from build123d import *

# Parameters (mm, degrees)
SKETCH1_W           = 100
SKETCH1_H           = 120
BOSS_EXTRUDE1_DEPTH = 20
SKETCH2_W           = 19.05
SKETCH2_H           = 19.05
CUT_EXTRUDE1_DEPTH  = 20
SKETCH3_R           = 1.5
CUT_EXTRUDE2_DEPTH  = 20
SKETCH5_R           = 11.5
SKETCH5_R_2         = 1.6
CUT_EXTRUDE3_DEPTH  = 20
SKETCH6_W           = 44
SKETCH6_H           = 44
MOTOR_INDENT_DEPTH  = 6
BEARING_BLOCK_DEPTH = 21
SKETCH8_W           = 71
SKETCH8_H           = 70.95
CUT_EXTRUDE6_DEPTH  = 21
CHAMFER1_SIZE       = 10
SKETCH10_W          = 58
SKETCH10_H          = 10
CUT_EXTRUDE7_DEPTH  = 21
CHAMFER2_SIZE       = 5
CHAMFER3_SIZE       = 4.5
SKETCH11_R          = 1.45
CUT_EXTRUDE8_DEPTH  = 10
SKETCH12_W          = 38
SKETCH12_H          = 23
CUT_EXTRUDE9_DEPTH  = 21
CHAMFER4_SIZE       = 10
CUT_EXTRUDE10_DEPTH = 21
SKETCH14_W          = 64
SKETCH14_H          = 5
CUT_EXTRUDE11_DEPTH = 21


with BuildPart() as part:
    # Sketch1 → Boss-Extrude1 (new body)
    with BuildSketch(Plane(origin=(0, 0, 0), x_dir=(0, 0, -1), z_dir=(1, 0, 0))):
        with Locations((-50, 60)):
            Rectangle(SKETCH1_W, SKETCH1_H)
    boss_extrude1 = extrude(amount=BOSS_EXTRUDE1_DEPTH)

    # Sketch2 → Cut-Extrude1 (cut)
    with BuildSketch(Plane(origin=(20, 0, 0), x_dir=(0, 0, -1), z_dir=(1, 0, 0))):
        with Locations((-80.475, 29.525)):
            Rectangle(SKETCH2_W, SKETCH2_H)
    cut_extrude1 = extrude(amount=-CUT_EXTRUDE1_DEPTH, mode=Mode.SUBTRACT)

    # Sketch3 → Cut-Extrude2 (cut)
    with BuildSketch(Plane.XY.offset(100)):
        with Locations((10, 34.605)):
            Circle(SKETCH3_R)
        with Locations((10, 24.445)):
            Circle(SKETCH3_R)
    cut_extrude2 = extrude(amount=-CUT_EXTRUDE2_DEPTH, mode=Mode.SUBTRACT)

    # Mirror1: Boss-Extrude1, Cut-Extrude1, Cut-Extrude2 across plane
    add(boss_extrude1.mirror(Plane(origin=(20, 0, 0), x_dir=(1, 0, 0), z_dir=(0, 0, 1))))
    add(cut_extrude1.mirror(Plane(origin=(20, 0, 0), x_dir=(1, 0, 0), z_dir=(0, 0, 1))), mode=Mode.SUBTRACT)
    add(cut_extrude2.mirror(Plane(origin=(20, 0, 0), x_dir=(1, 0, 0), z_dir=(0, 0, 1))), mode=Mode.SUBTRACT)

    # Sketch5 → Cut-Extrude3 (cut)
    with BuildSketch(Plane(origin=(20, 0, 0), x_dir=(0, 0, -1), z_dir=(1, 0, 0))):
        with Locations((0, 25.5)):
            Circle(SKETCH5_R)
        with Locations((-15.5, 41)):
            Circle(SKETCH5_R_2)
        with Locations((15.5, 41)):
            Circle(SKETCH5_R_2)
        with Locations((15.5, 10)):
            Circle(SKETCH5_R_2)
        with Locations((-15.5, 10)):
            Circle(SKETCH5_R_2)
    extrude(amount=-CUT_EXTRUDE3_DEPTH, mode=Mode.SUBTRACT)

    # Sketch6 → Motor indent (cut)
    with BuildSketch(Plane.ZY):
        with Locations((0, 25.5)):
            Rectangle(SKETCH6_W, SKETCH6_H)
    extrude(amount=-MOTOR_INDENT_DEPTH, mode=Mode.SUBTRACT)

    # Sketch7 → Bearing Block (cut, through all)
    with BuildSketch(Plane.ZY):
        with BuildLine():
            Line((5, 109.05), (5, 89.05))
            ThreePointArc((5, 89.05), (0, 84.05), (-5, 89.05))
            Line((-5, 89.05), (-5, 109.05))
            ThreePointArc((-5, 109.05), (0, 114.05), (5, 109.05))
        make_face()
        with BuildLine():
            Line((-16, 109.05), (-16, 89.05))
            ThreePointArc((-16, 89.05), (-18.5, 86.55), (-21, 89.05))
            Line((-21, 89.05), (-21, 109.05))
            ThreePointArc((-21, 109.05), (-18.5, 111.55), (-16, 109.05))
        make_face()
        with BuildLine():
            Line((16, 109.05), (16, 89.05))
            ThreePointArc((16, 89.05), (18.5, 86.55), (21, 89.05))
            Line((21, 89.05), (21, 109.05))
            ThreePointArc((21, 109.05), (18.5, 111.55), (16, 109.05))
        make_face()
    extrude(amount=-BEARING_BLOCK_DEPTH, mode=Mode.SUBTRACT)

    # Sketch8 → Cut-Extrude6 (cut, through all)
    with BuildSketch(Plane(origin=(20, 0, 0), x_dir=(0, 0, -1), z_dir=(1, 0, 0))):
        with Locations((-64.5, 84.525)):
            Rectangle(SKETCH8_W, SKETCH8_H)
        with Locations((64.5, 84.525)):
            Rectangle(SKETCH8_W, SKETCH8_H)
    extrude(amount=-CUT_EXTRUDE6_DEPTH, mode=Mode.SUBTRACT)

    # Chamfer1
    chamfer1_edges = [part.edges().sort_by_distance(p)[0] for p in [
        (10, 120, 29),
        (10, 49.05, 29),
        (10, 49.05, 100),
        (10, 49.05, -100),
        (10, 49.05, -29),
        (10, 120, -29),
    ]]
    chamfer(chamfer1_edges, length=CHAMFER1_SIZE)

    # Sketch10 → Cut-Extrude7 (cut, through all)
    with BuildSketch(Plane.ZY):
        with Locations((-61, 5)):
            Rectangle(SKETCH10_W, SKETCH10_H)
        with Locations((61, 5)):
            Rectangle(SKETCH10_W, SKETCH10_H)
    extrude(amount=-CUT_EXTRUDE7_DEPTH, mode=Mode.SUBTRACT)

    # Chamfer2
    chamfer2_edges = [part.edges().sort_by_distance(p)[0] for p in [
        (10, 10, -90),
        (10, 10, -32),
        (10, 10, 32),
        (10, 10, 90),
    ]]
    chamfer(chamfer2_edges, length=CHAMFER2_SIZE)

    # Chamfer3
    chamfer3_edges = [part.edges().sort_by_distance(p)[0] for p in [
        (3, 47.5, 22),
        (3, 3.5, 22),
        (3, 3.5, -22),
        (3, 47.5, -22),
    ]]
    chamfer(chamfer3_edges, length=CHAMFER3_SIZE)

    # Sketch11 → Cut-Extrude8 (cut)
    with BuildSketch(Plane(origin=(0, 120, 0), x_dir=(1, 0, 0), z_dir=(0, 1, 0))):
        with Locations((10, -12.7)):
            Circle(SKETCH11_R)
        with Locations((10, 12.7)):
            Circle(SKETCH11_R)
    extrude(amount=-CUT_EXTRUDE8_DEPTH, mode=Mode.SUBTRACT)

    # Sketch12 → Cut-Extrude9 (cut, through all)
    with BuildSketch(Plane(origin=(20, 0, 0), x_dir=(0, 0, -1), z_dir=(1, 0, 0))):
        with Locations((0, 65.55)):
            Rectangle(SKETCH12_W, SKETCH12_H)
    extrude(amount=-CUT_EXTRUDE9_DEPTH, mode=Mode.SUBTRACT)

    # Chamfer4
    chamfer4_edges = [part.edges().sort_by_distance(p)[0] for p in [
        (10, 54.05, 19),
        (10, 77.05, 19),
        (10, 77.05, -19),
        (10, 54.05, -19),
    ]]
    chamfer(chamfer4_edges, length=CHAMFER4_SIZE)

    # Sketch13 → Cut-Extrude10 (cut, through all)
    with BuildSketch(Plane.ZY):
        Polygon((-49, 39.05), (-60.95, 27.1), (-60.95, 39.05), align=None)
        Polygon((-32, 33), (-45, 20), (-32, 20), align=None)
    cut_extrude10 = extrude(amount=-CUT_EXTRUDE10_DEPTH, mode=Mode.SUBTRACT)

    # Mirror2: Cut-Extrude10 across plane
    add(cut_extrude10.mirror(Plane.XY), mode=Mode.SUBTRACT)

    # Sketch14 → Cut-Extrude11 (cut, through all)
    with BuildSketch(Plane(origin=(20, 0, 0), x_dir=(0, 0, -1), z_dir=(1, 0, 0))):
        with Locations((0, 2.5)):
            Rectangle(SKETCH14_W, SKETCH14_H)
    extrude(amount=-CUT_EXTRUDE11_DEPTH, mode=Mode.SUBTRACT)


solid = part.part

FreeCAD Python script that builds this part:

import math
import FreeCAD as App
import Part
import Sketcher

V = App.Vector


def edges_at(feature, points):
    """Names of the edges that pass closest to the given points."""
    edges = feature.Shape.Edges
    near = lambda p: min(range(len(edges)), key=lambda i: edges[i].distToShape(Part.Vertex(*p))[0])
    return sorted({f"Edge{near(p) + 1}" for p in points})


def add_polygon(sketch, points):
    """Adds a closed chain of lines whose ends are joined by coincident constraints."""
    first, n = sketch.GeometryCount, len(points)
    for a, b in zip(points, points[1:] + points[:1]):
        sketch.addGeometry(Part.LineSegment(App.Vector(*a, 0), App.Vector(*b, 0)), False)
    for i in range(n):
        sketch.addConstraint(Sketcher.Constraint("Coincident", first + i, 2, first + (i + 1) % n, 1))

doc = App.newDocument("Part")
body = doc.addObject("PartDesign::Body", "Body")

# Sketch on YZ plane
sketch1 = body.newObject("Sketcher::SketchObject", "Sketch")
sketch1.AttachmentSupport = (doc.getObject("YZ_Plane"), [""])
sketch1.MapMode = "FlatFace"
add_polygon(sketch1, [(120, 100), (0, 100), (0, 0), (120, 0)])  # lines 0-3
sketch1.addConstraint([
    Sketcher.Constraint("Horizontal", 0),
    Sketcher.Constraint("Vertical", 1),
    Sketcher.Constraint("Horizontal", 2),
    Sketcher.Constraint("Vertical", 3),
    Sketcher.Constraint("Coincident", 1, 2, -1, 1),
    Sketcher.Constraint("DistanceX", 0, 2, 0, 1, 120.0),
    Sketcher.Constraint("DistanceY", 1, 2, 1, 1, 100.0),
])
pad1 = body.newObject("PartDesign::Pad", "Pad")
pad1.Profile = sketch1
pad1.Length = 20

# Sketch on YZ plane
sketch2 = body.newObject("Sketcher::SketchObject", "Sketch001")
sketch2.AttachmentSupport = (doc.getObject("YZ_Plane"), [""])
sketch2.MapMode = "FlatFace"
sketch2.AttachmentOffset = App.Placement(V(0, 0, 20), App.Rotation())
add_polygon(sketch2, [(39.05, 90), (20, 90), (20, 70.95), (39.05, 70.95)])  # lines 0-3
sketch2.addConstraint([
    Sketcher.Constraint("Horizontal", 0),
    Sketcher.Constraint("Vertical", 1),
    Sketcher.Constraint("Horizontal", 2),
    Sketcher.Constraint("Vertical", 3),
    Sketcher.Constraint("Equal", 2, 1),
    Sketcher.Constraint("DistanceX", -1, 1, 0, 2, 20.0),
    Sketcher.Constraint("DistanceY", -1, 1, 0, 2, 90.0),
    Sketcher.Constraint("DistanceX", 0, 2, 0, 1, 19.05),
])
pocket1 = body.newObject("PartDesign::Pocket", "Pocket")
pocket1.Profile = sketch2
pocket1.Length = 20

# Sketch on XY plane
sketch3 = body.newObject("Sketcher::SketchObject", "Sketch002")
sketch3.AttachmentSupport = (doc.getObject("XY_Plane"), [""])
sketch3.MapMode = "FlatFace"
sketch3.AttachmentOffset = App.Placement(V(0, 0, 100), App.Rotation())
sketch3.addGeometry([
    Part.Circle(V(10, 34.605, 0), V(0, 0, 1), 1.5),
    Part.Circle(V(10, 24.445, 0), V(0, 0, 1), 1.5),
], False)
sketch3.addConstraint([
    Sketcher.Constraint("Equal", 0, 1),
    Sketcher.Constraint("Vertical", 0, 3, 1, 3),
    Sketcher.Constraint("Diameter", 0, 3.0),
    Sketcher.Constraint("DistanceX", -1, 1, 0, 3, 10.0),
    Sketcher.Constraint("DistanceY", 1, 3, 0, 3, 10.16),
    Sketcher.Constraint("DistanceY", -1, 1, 0, 3, 34.605),
])
pocket2 = body.newObject("PartDesign::Pocket", "Pocket001")
pocket2.Profile = sketch3
pocket2.Length = 20
doc.recompute()

mirrored = body.newObject("PartDesign::Mirrored", "Mirrored")
mirrored.Originals = [pad1, pocket1, pocket2]
mirrored.MirrorPlane = (doc.getObject("XY_Plane"), [""])
body.Tip = mirrored

# Sketch on YZ plane
sketch4 = body.newObject("Sketcher::SketchObject", "Sketch003")
sketch4.AttachmentSupport = (doc.getObject("YZ_Plane"), [""])
sketch4.MapMode = "FlatFace"
sketch4.AttachmentOffset = App.Placement(V(0, 0, 20), App.Rotation())
sketch4.addGeometry([
    Part.Circle(V(25.5, 0, 0), V(0, 0, 1), 11.5),  # 0
    Part.Circle(V(41, 15.5, 0), V(0, 0, 1), 1.6),  # 1
    Part.Circle(V(41, -15.5, 0), V(0, 0, 1), 1.6),  # 2
    Part.Circle(V(10, -15.5, 0), V(0, 0, 1), 1.6),  # 3
    Part.Circle(V(10, 15.5, 0), V(0, 0, 1), 1.6),  # 4
], False)
sketch4.addConstraint([
    Sketcher.Constraint("Equal", 1, 2),
    Sketcher.Constraint("Equal", 2, 3),
    Sketcher.Constraint("Equal", 3, 4),
    Sketcher.Constraint("Symmetric", 1, 3, 2, 3, -1),
    Sketcher.Constraint("Symmetric", 3, 3, 4, 3, -1),
    Sketcher.Constraint("PointOnObject", 0, 3, -1),
    Sketcher.Constraint("Horizontal", 2, 3, 3, 3),
    Sketcher.Constraint("Diameter", 0, 23.0),
    Sketcher.Constraint("Diameter", 1, 3.2),
    Sketcher.Constraint("DistanceX", -1, 1, 1, 3, 41.0),
    Sketcher.Constraint("DistanceX", -1, 1, 3, 3, 10.0),
    Sketcher.Constraint("DistanceY", 2, 3, 1, 3, 31.0),
    Sketcher.Constraint("DistanceX", -1, 1, 0, 3, 25.5),
])
pocket3 = body.newObject("PartDesign::Pocket", "Pocket002")
pocket3.Profile = sketch4
pocket3.Length = 20

# Sketch on YZ plane
sketch5 = body.newObject("Sketcher::SketchObject", "Sketch004")
sketch5.AttachmentSupport = (doc.getObject("YZ_Plane"), [""])
sketch5.MapMode = "FlatFace"
add_polygon(sketch5, [(47.5, -22), (3.5, -22), (3.5, 22), (47.5, 22)])  # lines 0-3
sketch5.addConstraint([
    Sketcher.Constraint("Horizontal", 0),
    Sketcher.Constraint("Vertical", 1),
    Sketcher.Constraint("Horizontal", 2),
    Sketcher.Constraint("Vertical", 3),
    Sketcher.Constraint("Equal", 2, 1),
    Sketcher.Constraint("DistanceX", 0, 2, 0, 1, 44.0),
    Sketcher.Constraint("DistanceY", 0, 2, -1, 1, 22.0),
    Sketcher.Constraint("DistanceX", -1, 1, 0, 2, 3.5),
])
pocket4 = body.newObject("PartDesign::Pocket", "Pocket003")
pocket4.Profile = sketch5
pocket4.Length = 6
pocket4.Reversed = True

# Sketch on YZ plane
sketch6 = body.newObject("Sketcher::SketchObject", "Sketch005")
sketch6.AttachmentSupport = (doc.getObject("YZ_Plane"), [""])
sketch6.MapMode = "FlatFace"
sketch6.addGeometry([
    Part.LineSegment(V(89.05, 5, 0), V(109.05, 5, 0)),  # 0
    Part.ArcOfCircle(Part.Circle(V(109.05, 0, 0), V(0, 0, 1), 5), math.radians(-90), math.radians(90)),  # 1
    Part.LineSegment(V(109.05, -5, 0), V(89.05, -5, 0)),  # 2
    Part.ArcOfCircle(Part.Circle(V(89.05, 0, 0), V(0, 0, 1), 5), math.radians(90), math.radians(270)),  # 3
    Part.LineSegment(V(89.05, -16, 0), V(109.05, -16, 0)),  # 4
    Part.ArcOfCircle(Part.Circle(V(109.05, -18.5, 0), V(0, 0, 1), 2.5), math.radians(-90), math.radians(90)),  # 5
    Part.LineSegment(V(109.05, -21, 0), V(89.05, -21, 0)),  # 6
    Part.ArcOfCircle(Part.Circle(V(89.05, -18.5, 0), V(0, 0, 1), 2.5), math.radians(90), math.radians(270)),  # 7
    Part.LineSegment(V(109.05, 16, 0), V(89.05, 16, 0)),  # 8
    Part.ArcOfCircle(Part.Circle(V(89.05, 18.5, 0), V(0, 0, 1), 2.5), math.radians(90), math.radians(270)),  # 9
    Part.LineSegment(V(89.05, 21, 0), V(109.05, 21, 0)),  # 10
    Part.ArcOfCircle(Part.Circle(V(109.05, 18.5, 0), V(0, 0, 1), 2.5), math.radians(-90), math.radians(90)),  # 11
], False)
sketch6.addConstraint([
    Sketcher.Constraint("Tangent", 0, 2, 1, 2),
    Sketcher.Constraint("Tangent", 1, 1, 2, 1),
    Sketcher.Constraint("Tangent", 2, 2, 3, 2),
    Sketcher.Constraint("Tangent", 3, 1, 0, 1),
    Sketcher.Constraint("Tangent", 4, 2, 5, 2),
    Sketcher.Constraint("Tangent", 5, 1, 6, 1),
    Sketcher.Constraint("Tangent", 6, 2, 7, 2),
    Sketcher.Constraint("Tangent", 7, 1, 4, 1),
    Sketcher.Constraint("Tangent", 8, 2, 9, 2),
    Sketcher.Constraint("Tangent", 9, 1, 10, 1),
    Sketcher.Constraint("Tangent", 10, 2, 11, 2),
    Sketcher.Constraint("Tangent", 11, 1, 8, 1),
    Sketcher.Constraint("Horizontal", 0),
    Sketcher.Constraint("Horizontal", 2),
    Sketcher.Constraint("Horizontal", 4),
    Sketcher.Constraint("Horizontal", 6),
    Sketcher.Constraint("Horizontal", 8),
    Sketcher.Constraint("Horizontal", 10),
    Sketcher.Constraint("Equal", 7, 9),
    Sketcher.Constraint("Symmetric", 7, 3, 9, 3, -1),
    Sketcher.Constraint("PointOnObject", 1, 3, -1),
    Sketcher.Constraint("Vertical", 1, 3, 5, 3),
    Sketcher.Constraint("Vertical", 3, 3, 7, 3),
    Sketcher.Constraint("Vertical", 5, 3, 11, 3),
    Sketcher.Constraint("Radius", 1, 5.0),
    Sketcher.Constraint("Radius", 5, 2.5),
    Sketcher.Constraint("DistanceX", 0, 1, 0, 2, 20.0),
    Sketcher.Constraint("DistanceY", 4, 2, -1, 1, 16.0),
    Sketcher.Constraint("DistanceX", -1, 1, 1, 3, 109.05),
])
pocket5 = body.newObject("PartDesign::Pocket", "Pocket004")
pocket5.Profile = sketch6
pocket5.Type = "ThroughAll"
pocket5.Reversed = True

# Sketch on YZ plane
sketch7 = body.newObject("Sketcher::SketchObject", "Sketch006")
sketch7.AttachmentSupport = (doc.getObject("YZ_Plane"), [""])
sketch7.MapMode = "FlatFace"
sketch7.AttachmentOffset = App.Placement(V(0, 0, 20), App.Rotation())
add_polygon(sketch7, [(120, 100), (49.05, 100), (49.05, 29), (120, 29)])  # lines 0-3
add_polygon(sketch7, [(120, -29), (49.05, -29), (49.05, -100), (120, -100)])  # lines 4-7
sketch7.addConstraint([
    Sketcher.Constraint("Horizontal", 0),
    Sketcher.Constraint("Vertical", 1),
    Sketcher.Constraint("Horizontal", 2),
    Sketcher.Constraint("Vertical", 3),
    Sketcher.Constraint("Horizontal", 4),
    Sketcher.Constraint("Vertical", 5),
    Sketcher.Constraint("Horizontal", 6),
    Sketcher.Constraint("Vertical", 7),
    Sketcher.Constraint("Symmetric", 1, 2, 4, 2, -1),
    Sketcher.Constraint("Symmetric", 3, 2, 6, 2, -1),
    Sketcher.Constraint("DistanceY", 1, 2, 1, 1, 71.0),
    Sketcher.Constraint("DistanceY", -1, 1, 0, 2, 100.0),
    Sketcher.Constraint("DistanceX", -1, 1, 2, 2, 120.0),
    Sketcher.Constraint("DistanceX", 0, 2, 0, 1, 70.95),
])
pocket6 = body.newObject("PartDesign::Pocket", "Pocket005")
pocket6.Profile = sketch7
pocket6.Type = "ThroughAll"
doc.recompute()

chamfer = body.newObject("PartDesign::Chamfer", "Chamfer")
chamfer.Base = (pocket6, edges_at(pocket6, [
    (10, 120, 29),
    (10, 49.05, 29),
    (10, 49.05, 100),
    (10, 49.05, -100),
    (10, 49.05, -29),
    (10, 120, -29),
]))
chamfer.Size = 10

# Sketch on YZ plane
sketch8 = body.newObject("Sketcher::SketchObject", "Sketch007")
sketch8.AttachmentSupport = (doc.getObject("YZ_Plane"), [""])
sketch8.MapMode = "FlatFace"
add_polygon(sketch8, [(10, -90), (0, -90), (0, -32), (10, -32)])  # lines 0-3
add_polygon(sketch8, [(10, 32), (0, 32), (0, 90), (10, 90)])  # lines 4-7
sketch8.addConstraint([
    Sketcher.Constraint("Horizontal", 0),
    Sketcher.Constraint("Vertical", 1),
    Sketcher.Constraint("Horizontal", 2),
    Sketcher.Constraint("Vertical", 3),
    Sketcher.Constraint("Horizontal", 4),
    Sketcher.Constraint("Vertical", 5),
    Sketcher.Constraint("Horizontal", 6),
    Sketcher.Constraint("Vertical", 7),
    Sketcher.Constraint("Symmetric", 1, 2, 4, 2, -1, 1),
    Sketcher.Constraint("Symmetric", 0, 2, 5, 2, -1),
    Sketcher.Constraint("Vertical", 3, 2, 6, 2),
    Sketcher.Constraint("DistanceX", 0, 2, 0, 1, 10.0),
    Sketcher.Constraint("DistanceY", 1, 1, 1, 2, 58.0),
    Sketcher.Constraint("DistanceY", 0, 2, -1, 1, 90.0),
])
pocket7 = body.newObject("PartDesign::Pocket", "Pocket006")
pocket7.Profile = sketch8
pocket7.Type = "ThroughAll"
pocket7.Reversed = True
doc.recompute()

chamfer2 = body.newObject("PartDesign::Chamfer", "Chamfer001")
chamfer2.Base = (pocket7, edges_at(pocket7, [
    (10, 10, -90),
    (10, 10, -32),
    (10, 10, 32),
    (10, 10, 90),
]))
chamfer2.Size = 5
doc.recompute()

chamfer3 = body.newObject("PartDesign::Chamfer", "Chamfer002")
chamfer3.Base = (chamfer2, edges_at(chamfer2, [
    (3, 47.5, 22),
    (3, 3.5, 22),
    (3, 3.5, -22),
    (3, 47.5, -22),
]))
chamfer3.Size = 4.5

# Sketch on XZ plane
sketch9 = body.newObject("Sketcher::SketchObject", "Sketch008")
sketch9.AttachmentSupport = (doc.getObject("XZ_Plane"), [""])
sketch9.MapMode = "FlatFace"
sketch9.AttachmentOffset = App.Placement(V(0, 0, -120), App.Rotation())
sketch9.addGeometry([
    Part.Circle(V(10, 12.7, 0), V(0, 0, 1), 1.45),
    Part.Circle(V(10, -12.7, 0), V(0, 0, 1), 1.45),
], False)
sketch9.addConstraint([
    Sketcher.Constraint("Equal", 0, 1),
    Sketcher.Constraint("Symmetric", 0, 3, 1, 3, -1),
    Sketcher.Constraint("Diameter", 0, 2.9),
    Sketcher.Constraint("DistanceX", -1, 1, 0, 3, 10.0),
    Sketcher.Constraint("DistanceY", -1, 1, 0, 3, 12.7),
])
pocket8 = body.newObject("PartDesign::Pocket", "Pocket007")
pocket8.Profile = sketch9
pocket8.Length = 10
pocket8.Reversed = True

# Sketch on YZ plane
sketch10 = body.newObject("Sketcher::SketchObject", "Sketch009")
sketch10.AttachmentSupport = (doc.getObject("YZ_Plane"), [""])
sketch10.MapMode = "FlatFace"
sketch10.AttachmentOffset = App.Placement(V(0, 0, 20), App.Rotation())
add_polygon(sketch10, [(77.05, 19), (54.05, 19), (54.05, -19), (77.05, -19)])  # lines 0-3
sketch10.addConstraint([
    Sketcher.Constraint("Horizontal", 0),
    Sketcher.Constraint("Vertical", 1),
    Sketcher.Constraint("Horizontal", 2),
    Sketcher.Constraint("Vertical", 3),
    Sketcher.Constraint("DistanceX", 0, 2, 0, 1, 23.0),
    Sketcher.Constraint("DistanceY", 1, 2, 1, 1, 38.0),
    Sketcher.Constraint("DistanceY", -1, 1, 0, 2, 19.0),
    Sketcher.Constraint("DistanceX", -1, 1, 0, 2, 54.05),
])
pocket9 = body.newObject("PartDesign::Pocket", "Pocket008")
pocket9.Profile = sketch10
pocket9.Type = "ThroughAll"
doc.recompute()

chamfer4 = body.newObject("PartDesign::Chamfer", "Chamfer003")
chamfer4.Base = (pocket9, edges_at(pocket9, [
    (10, 54.05, 19),
    (10, 77.05, 19),
    (10, 77.05, -19),
    (10, 54.05, -19),
]))
chamfer4.Size = 10

# Sketch on YZ plane
sketch11 = body.newObject("Sketcher::SketchObject", "Sketch010")
sketch11.AttachmentSupport = (doc.getObject("YZ_Plane"), [""])
sketch11.MapMode = "FlatFace"
add_polygon(sketch11, [(27.1, -60.95), (39.05, -49), (39.05, -60.95)])  # lines 0-2
add_polygon(sketch11, [(33, -32), (20, -45), (20, -32)])  # lines 3-5
sketch11.addConstraint([
    Sketcher.Constraint("Vertical", 1),
    Sketcher.Constraint("Horizontal", 2),
    Sketcher.Constraint("Vertical", 4),
    Sketcher.Constraint("Horizontal", 5),
    Sketcher.Constraint("Parallel", 0, 3),
    Sketcher.Constraint("Equal", 2, 1),
    Sketcher.Constraint("DistanceX", 5, 1, 5, 2, 13.0),
    Sketcher.Constraint("DistanceY", 0, 2, -1, 1, 49.0),
    Sketcher.Constraint("DistanceX", -1, 1, 3, 2, 20.0),
    Sketcher.Constraint("DistanceY", 3, 2, -1, 1, 45.0),
    Sketcher.Constraint("DistanceX", 2, 2, 2, 1, 11.95),
    Sketcher.Constraint("DistanceX", -1, 1, 2, 2, 27.1),
])
pocket10 = body.newObject("PartDesign::Pocket", "Pocket009")
pocket10.Profile = sketch11
pocket10.Type = "ThroughAll"
pocket10.Reversed = True
doc.recompute()

mirrored2 = body.newObject("PartDesign::Mirrored", "Mirrored001")
mirrored2.Originals = [pocket10]
mirrored2.MirrorPlane = (doc.getObject("XY_Plane"), [""])
body.Tip = mirrored2

# Sketch on YZ plane
sketch12 = body.newObject("Sketcher::SketchObject", "Sketch011")
sketch12.AttachmentSupport = (doc.getObject("YZ_Plane"), [""])
sketch12.MapMode = "FlatFace"
sketch12.AttachmentOffset = App.Placement(V(0, 0, 20), App.Rotation())
add_polygon(sketch12, [(5, 32), (0, 32), (0, -32), (5, -32)])  # lines 0-3
sketch12.addConstraint([
    Sketcher.Constraint("Horizontal", 0),
    Sketcher.Constraint("Vertical", 1),
    Sketcher.Constraint("Horizontal", 2),
    Sketcher.Constraint("Vertical", 3),
    Sketcher.Constraint("Symmetric", 0, 2, 1, 2, -1, 1),
    Sketcher.Constraint("DistanceX", 0, 2, 0, 1, 5.0),
    Sketcher.Constraint("DistanceY", 1, 2, 1, 1, 64.0),
])
pocket11 = body.newObject("PartDesign::Pocket", "Pocket010")
pocket11.Profile = sketch12
pocket11.Type = "ThroughAll"

doc.recompute()
